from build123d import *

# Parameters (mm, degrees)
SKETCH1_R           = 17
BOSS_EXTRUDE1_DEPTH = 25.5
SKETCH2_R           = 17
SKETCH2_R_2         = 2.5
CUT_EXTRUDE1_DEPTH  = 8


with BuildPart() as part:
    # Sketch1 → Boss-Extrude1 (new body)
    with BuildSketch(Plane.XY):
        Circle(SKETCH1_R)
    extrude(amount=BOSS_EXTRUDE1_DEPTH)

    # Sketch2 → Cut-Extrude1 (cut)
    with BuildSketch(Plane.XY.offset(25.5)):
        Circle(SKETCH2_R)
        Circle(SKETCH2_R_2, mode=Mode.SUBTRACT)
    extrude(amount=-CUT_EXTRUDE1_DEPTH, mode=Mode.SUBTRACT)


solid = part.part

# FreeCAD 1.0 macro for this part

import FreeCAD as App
import Part
import Sketcher
from FreeCAD import Vector
Q = App.Units.Quantity

doc = App.newDocument("Part")
body = doc.addObject("PartDesign::Body", "Body")

sketch1 = doc.addObject("Sketcher::SketchObject", "Sketch")
body.addObject(sketch1)
sketch1.AttachmentSupport = (doc.XY_Plane, [""])
sketch1.MapMode = "FlatFace"
sketch1.addGeometry(Part.Circle(Vector(0, 0, 0), Vector(0, 0, 1), 17), False)
sketch1.addConstraint([
    Sketcher.Constraint("Coincident", 0, 3, -1, 1),
    Sketcher.Constraint("Diameter", 0, Q("34 mm")),
])
pad1 = doc.addObject("PartDesign::Pad", "Pad")
body.addObject(pad1)
pad1.Profile = sketch1
pad1.Length = 25.5

sketch2 = doc.addObject("Sketcher::SketchObject", "Sketch001")
body.addObject(sketch2)
sketch2.AttachmentSupport = (doc.XY_Plane, [""])
sketch2.MapMode = "FlatFace"
sketch2.AttachmentOffset = App.Placement(Vector(0, 0, 25.5), App.Rotation())
sketch2.addGeometry([
    Part.Circle(Vector(0, 0, 0), Vector(0, 0, 1), 17),
    Part.Circle(Vector(0, 0, 0), Vector(0, 0, 1), 2.5),
], False)
sketch2.addConstraint([
    Sketcher.Constraint("Coincident", 0, 3, -1, 1),
    Sketcher.Constraint("Coincident", 1, 3, -1, 1),
    Sketcher.Constraint("Diameter", 0, Q("34 mm")),
    Sketcher.Constraint("Diameter", 1, Q("5 mm")),
])
pocket1 = doc.addObject("PartDesign::Pocket", "Pocket")
body.addObject(pocket1)
pocket1.Profile = sketch2
pocket1.Length = 8

doc.recompute()
